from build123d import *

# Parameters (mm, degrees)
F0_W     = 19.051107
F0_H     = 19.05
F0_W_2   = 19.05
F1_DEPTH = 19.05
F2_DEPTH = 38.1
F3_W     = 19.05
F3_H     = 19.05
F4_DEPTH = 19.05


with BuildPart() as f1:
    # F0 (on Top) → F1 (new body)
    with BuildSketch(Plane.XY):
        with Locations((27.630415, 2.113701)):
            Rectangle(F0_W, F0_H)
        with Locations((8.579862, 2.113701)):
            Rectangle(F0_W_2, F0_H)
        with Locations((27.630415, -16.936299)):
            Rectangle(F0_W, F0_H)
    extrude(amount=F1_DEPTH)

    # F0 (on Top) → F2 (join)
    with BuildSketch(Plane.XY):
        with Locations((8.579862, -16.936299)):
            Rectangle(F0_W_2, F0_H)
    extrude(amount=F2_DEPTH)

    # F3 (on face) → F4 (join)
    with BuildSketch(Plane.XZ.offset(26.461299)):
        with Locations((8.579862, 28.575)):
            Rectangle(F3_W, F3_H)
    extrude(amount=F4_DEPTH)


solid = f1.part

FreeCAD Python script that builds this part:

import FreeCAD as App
import Part
import Sketcher

V = App.Vector
Q = App.Units.Quantity


def add_polygon(sketch, points):
    """Adds a closed chain of lines whose ends are joined by coincident constraints."""
    first, n = sketch.GeometryCount, len(points)
    for a, b in zip(points, points[1:] + points[:1]):
        sketch.addGeometry(Part.LineSegment(App.Vector(*a, 0), App.Vector(*b, 0)), False)
    for i in range(n):
        sketch.addConstraint(Sketcher.Constraint("Coincident", first + i, 2, first + (i + 1) % n, 1))

doc = App.newDocument("Part")
body = doc.addObject("PartDesign::Body", "Body")

# Sketch on XY plane
sketch1 = doc.addObject("Sketcher::SketchObject", "Sketch")
body.addObject(sketch1)
sketch1.AttachmentSupport = (doc.XY_Plane, [""])
sketch1.MapMode = "FlatFace"
add_polygon(sketch1, [(-0.945138, 11.638701), (-0.945138, -7.411299), (18.104861, -7.411299), (18.104861, -26.461299), (37.155969, -26.461299), (37.155969, 11.638701)])  # lines 0-5
sketch1.addConstraint(Sketcher.Constraint("Vertical", 0))
sketch1.addConstraint(Sketcher.Constraint("Horizontal", 1))
sketch1.addConstraint(Sketcher.Constraint("Vertical", 2))
sketch1.addConstraint(Sketcher.Constraint("Horizontal", 3))
sketch1.addConstraint(Sketcher.Constraint("Vertical", 4))
sketch1.addConstraint(Sketcher.Constraint("Horizontal", 5))
sketch1.addConstraint(Sketcher.Constraint("Equal", 1, 0))
sketch1.addConstraint(Sketcher.Constraint("Equal", 0, 2))
sketch1.addConstraint(Sketcher.Constraint("DistanceY", 4, 1, 4, 2, Q("1.5 in")))
sketch1.addConstraint(Sketcher.Constraint("DistanceY", 0, 2, -1, 1, 7.411299))
sketch1.addConstraint(Sketcher.Constraint("DistanceX", 3, 1, 3, 2, 19.051107))
sketch1.addConstraint(Sketcher.Constraint("DistanceX", 0, 2, -1, 1, 0.945138))
pad1 = doc.addObject("PartDesign::Pad", "Pad")
body.addObject(pad1)
pad1.Profile = sketch1
pad1.Length = Q("0.75 in")

# Sketch on XY plane
sketch2 = doc.addObject("Sketcher::SketchObject", "Sketch001")
body.addObject(sketch2)
sketch2.AttachmentSupport = (doc.XY_Plane, [""])
sketch2.MapMode = "FlatFace"
add_polygon(sketch2, [(-0.945138, -7.411299), (-0.945138, -26.461299), (18.104862, -26.461299), (18.104862, -7.411299)])  # lines 0-3
sketch2.addConstraint(Sketcher.Constraint("Vertical", 0))
sketch2.addConstraint(Sketcher.Constraint("Horizontal", 1))
sketch2.addConstraint(Sketcher.Constraint("Vertical", 2))
sketch2.addConstraint(Sketcher.Constraint("Horizontal", 3))
sketch2.addConstraint(Sketcher.Constraint("Equal", 3, 0))
sketch2.addConstraint(Sketcher.Constraint("DistanceX", 1, 1, 1, 2, Q("0.75 in")))
sketch2.addConstraint(Sketcher.Constraint("DistanceY", 0, 2, -1, 1, 26.461299))
sketch2.addConstraint(Sketcher.Constraint("DistanceX", 0, 2, -1, 1, 0.945138))
pad2 = doc.addObject("PartDesign::Pad", "Pad001")
body.addObject(pad2)
pad2.Profile = sketch2
pad2.Length = Q("1.5 in")

# Sketch on XZ plane
sketch3 = doc.addObject("Sketcher::SketchObject", "Sketch002")
body.addObject(sketch3)
sketch3.AttachmentSupport = (doc.XZ_Plane, [""])
sketch3.MapMode = "FlatFace"
sketch3.AttachmentOffset = App.Placement(V(0, 0, 26.461299), App.Rotation())
add_polygon(sketch3, [(-0.945138, 38.1), (-0.945138, 19.05), (18.104862, 19.05), (18.104862, 38.1)])  # lines 0-3
sketch3.addConstraint(Sketcher.Constraint("Vertical", 0))
sketch3.addConstraint(Sketcher.Constraint("Horizontal", 1))
sketch3.addConstraint(Sketcher.Constraint("Vertical", 2))
sketch3.addConstraint(Sketcher.Constraint("Horizontal", 3))
sketch3.addConstraint(Sketcher.Constraint("Equal", 3, 0))
sketch3.addConstraint(Sketcher.Constraint("DistanceX", 1, 1, 1, 2, Q("0.75 in")))
sketch3.addConstraint(Sketcher.Constraint("DistanceY", -1, 1, 2, 2, Q("1.5 in")))
sketch3.addConstraint(Sketcher.Constraint("DistanceX", 0, 2, -1, 1, 0.945138))
pad3 = doc.addObject("PartDesign::Pad", "Pad002")
body.addObject(pad3)
pad3.Profile = sketch3
pad3.Length = Q("0.75 in")

doc.recompute()
